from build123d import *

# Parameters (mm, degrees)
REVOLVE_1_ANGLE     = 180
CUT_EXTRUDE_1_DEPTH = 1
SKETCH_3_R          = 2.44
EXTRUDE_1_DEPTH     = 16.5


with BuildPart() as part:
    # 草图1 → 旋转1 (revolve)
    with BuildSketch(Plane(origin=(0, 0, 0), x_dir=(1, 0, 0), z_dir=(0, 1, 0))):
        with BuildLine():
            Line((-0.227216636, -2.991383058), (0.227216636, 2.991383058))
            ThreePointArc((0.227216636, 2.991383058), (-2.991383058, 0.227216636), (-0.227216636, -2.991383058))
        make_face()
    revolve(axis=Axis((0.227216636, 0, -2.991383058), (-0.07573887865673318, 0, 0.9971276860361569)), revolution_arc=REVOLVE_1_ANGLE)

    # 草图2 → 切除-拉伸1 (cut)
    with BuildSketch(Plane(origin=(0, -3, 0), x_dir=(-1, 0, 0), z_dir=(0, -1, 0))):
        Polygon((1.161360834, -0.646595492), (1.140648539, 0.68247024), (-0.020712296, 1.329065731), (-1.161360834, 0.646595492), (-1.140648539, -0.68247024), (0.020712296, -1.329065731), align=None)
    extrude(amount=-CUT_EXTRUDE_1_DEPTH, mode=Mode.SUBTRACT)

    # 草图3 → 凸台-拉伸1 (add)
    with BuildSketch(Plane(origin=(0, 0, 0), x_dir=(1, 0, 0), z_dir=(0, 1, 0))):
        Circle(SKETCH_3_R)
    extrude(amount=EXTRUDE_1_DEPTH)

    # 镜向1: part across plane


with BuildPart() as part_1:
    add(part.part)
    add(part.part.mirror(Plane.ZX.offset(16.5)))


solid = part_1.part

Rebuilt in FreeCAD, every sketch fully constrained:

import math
import FreeCAD as App
import Part
import Sketcher
from FreeCAD import Vector

doc = App.newDocument("Part")
body = doc.addObject("PartDesign::Body", "Body")

# Sketch on XZ plane
sketch1 = doc.addObject("Sketcher::SketchObject", "Sketch")
body.addObject(sketch1)
sketch1.AttachmentSupport = (doc.XZ_Plane, [""])
sketch1.MapMode = "FlatFace"
sketch1.addGeometry(Part.LineSegment(Vector(-0.2, 3, 0), Vector(0.2, -3, 0)), False)
sketch1.addGeometry(Part.ArcOfCircle(Part.Circle(Vector(0, 0, 0), Vector(0, 0, 1), 3), math.radians(94), math.radians(274)), False)
sketch1.addGeometry(Part.LineSegment(Vector(0.2, -3, 0), Vector(-0.2, 3, 0)), True)  # axis
sketch1.addConstraint(Sketcher.Constraint("Coincident", 0, 1, 1, 1))
sketch1.addConstraint(Sketcher.Constraint("Coincident", 1, 2, 0, 2))
sketch1.addConstraint(Sketcher.Constraint("Coincident", 1, 3, -1, 1))
sketch1.addConstraint(Sketcher.Constraint("Coincident", 2, 1, 1, 2))
sketch1.addConstraint(Sketcher.Constraint("Coincident", 2, 2, 0, 1))
sketch1.addConstraint(Sketcher.Constraint("Radius", 1, 3.0))
sketch1.addConstraint(Sketcher.Constraint("DistanceX", 0, 1, -1, 1, 0.227217))
sketch1.addConstraint(Sketcher.Constraint("DistanceX", -1, 1, 1, 2, 0.227217))
revolution = doc.addObject("PartDesign::Revolution", "Revolution")
body.addObject(revolution)
revolution.Profile = sketch1
revolution.ReferenceAxis = (sketch1, ["Axis0"])
revolution.Angle = 180

# Sketch on XZ plane
sketch2 = doc.addObject("Sketcher::SketchObject", "Sketch001")
body.addObject(sketch2)
sketch2.AttachmentSupport = (doc.XZ_Plane, [""])
sketch2.MapMode = "FlatFace"
sketch2.AttachmentOffset = App.Placement(Vector(0, 0, 3), App.Rotation())
sketch2.addGeometry(Part.LineSegment(Vector(-1.2, 0.6, 0), Vector(-1.1, -0.7, 0)), False)
sketch2.addGeometry(Part.LineSegment(Vector(-1.1, -0.7, 0), Vector(0, -1.3, 0)), False)
sketch2.addGeometry(Part.LineSegment(Vector(0, -1.3, 0), Vector(1.2, -0.6, 0)), False)
sketch2.addGeometry(Part.LineSegment(Vector(1.2, -0.6, 0), Vector(1.1, 0.7, 0)), False)
sketch2.addGeometry(Part.LineSegment(Vector(1.1, 0.7, 0), Vector(0, 1.3, 0)), False)
sketch2.addGeometry(Part.LineSegment(Vector(0, 1.3, 0), Vector(-1.2, 0.6, 0)), False)
sketch2.addConstraint(Sketcher.Constraint("Coincident", 0, 2, 1, 1))
sketch2.addConstraint(Sketcher.Constraint("Coincident", 1, 2, 2, 1))
sketch2.addConstraint(Sketcher.Constraint("Coincident", 2, 2, 3, 1))
sketch2.addConstraint(Sketcher.Constraint("Coincident", 3, 2, 4, 1))
sketch2.addConstraint(Sketcher.Constraint("Coincident", 4, 2, 5, 1))
sketch2.addConstraint(Sketcher.Constraint("Coincident", 5, 2, 0, 1))
sketch2.addConstraint(Sketcher.Constraint("Symmetric", 0, 2, 3, 2, -1, 1))
sketch2.addConstraint(Sketcher.Constraint("Symmetric", 1, 2, 4, 2, -1, 1))
sketch2.addConstraint(Sketcher.Constraint("Symmetric", 2, 2, 5, 2, -1, 1))
sketch2.addConstraint(Sketcher.Constraint("Equal", 0, 1))
sketch2.addConstraint(Sketcher.Constraint("Equal", 1, 2))
sketch2.addConstraint(Sketcher.Constraint("DistanceX", 0, 2, -1, 1, 1.140649))
sketch2.addConstraint(Sketcher.Constraint("DistanceY", 0, 2, -1, 1, 0.68247))
sketch2.addConstraint(Sketcher.Constraint("DistanceX", -1, 1, 2, 2, 1.161361))
sketch2.addConstraint(Sketcher.Constraint("DistanceX", 0, 2, 1, 2, 1.161361))
pocket1 = doc.addObject("PartDesign::Pocket", "Pocket")
body.addObject(pocket1)
pocket1.Profile = sketch2
pocket1.Length = 1

# Sketch on XZ plane
sketch3 = doc.addObject("Sketcher::SketchObject", "Sketch002")
body.addObject(sketch3)
sketch3.AttachmentSupport = (doc.XZ_Plane, [""])
sketch3.MapMode = "FlatFace"
sketch3.addGeometry(Part.Circle(Vector(0, 0, 0), Vector(0, 0, 1), 2.4), False)
sketch3.addConstraint(Sketcher.Constraint("Coincident", 0, 3, -1, 1))
sketch3.addConstraint(Sketcher.Constraint("Diameter", 0, 4.88))
pad1 = doc.addObject("PartDesign::Pad", "Pad")
body.addObject(pad1)
pad1.Profile = sketch3
pad1.Length = 16.5
pad1.Reversed = True
body2 = doc.addObject("PartDesign::Body", "Body001")
doc.recompute()

body2.BaseFeature = body
doc.recompute()

mirroring = doc.addObject("Part::Mirroring", "Mirroring")
mirroring.Source = body
mirroring.Base = Vector(0, 16.5, 0)
mirroring.Normal = Vector(0, 1, 0)
body3 = doc.addObject("PartDesign::Body", "Body002")
body3.BaseFeature = mirroring
boolean = doc.addObject("PartDesign::Boolean", "Boolean")
body2.addObject(boolean)
boolean.Type = "Fuse"
boolean.addObjects([body3])
doc.recompute()
mirroring.Visibility = False

doc.recompute()
